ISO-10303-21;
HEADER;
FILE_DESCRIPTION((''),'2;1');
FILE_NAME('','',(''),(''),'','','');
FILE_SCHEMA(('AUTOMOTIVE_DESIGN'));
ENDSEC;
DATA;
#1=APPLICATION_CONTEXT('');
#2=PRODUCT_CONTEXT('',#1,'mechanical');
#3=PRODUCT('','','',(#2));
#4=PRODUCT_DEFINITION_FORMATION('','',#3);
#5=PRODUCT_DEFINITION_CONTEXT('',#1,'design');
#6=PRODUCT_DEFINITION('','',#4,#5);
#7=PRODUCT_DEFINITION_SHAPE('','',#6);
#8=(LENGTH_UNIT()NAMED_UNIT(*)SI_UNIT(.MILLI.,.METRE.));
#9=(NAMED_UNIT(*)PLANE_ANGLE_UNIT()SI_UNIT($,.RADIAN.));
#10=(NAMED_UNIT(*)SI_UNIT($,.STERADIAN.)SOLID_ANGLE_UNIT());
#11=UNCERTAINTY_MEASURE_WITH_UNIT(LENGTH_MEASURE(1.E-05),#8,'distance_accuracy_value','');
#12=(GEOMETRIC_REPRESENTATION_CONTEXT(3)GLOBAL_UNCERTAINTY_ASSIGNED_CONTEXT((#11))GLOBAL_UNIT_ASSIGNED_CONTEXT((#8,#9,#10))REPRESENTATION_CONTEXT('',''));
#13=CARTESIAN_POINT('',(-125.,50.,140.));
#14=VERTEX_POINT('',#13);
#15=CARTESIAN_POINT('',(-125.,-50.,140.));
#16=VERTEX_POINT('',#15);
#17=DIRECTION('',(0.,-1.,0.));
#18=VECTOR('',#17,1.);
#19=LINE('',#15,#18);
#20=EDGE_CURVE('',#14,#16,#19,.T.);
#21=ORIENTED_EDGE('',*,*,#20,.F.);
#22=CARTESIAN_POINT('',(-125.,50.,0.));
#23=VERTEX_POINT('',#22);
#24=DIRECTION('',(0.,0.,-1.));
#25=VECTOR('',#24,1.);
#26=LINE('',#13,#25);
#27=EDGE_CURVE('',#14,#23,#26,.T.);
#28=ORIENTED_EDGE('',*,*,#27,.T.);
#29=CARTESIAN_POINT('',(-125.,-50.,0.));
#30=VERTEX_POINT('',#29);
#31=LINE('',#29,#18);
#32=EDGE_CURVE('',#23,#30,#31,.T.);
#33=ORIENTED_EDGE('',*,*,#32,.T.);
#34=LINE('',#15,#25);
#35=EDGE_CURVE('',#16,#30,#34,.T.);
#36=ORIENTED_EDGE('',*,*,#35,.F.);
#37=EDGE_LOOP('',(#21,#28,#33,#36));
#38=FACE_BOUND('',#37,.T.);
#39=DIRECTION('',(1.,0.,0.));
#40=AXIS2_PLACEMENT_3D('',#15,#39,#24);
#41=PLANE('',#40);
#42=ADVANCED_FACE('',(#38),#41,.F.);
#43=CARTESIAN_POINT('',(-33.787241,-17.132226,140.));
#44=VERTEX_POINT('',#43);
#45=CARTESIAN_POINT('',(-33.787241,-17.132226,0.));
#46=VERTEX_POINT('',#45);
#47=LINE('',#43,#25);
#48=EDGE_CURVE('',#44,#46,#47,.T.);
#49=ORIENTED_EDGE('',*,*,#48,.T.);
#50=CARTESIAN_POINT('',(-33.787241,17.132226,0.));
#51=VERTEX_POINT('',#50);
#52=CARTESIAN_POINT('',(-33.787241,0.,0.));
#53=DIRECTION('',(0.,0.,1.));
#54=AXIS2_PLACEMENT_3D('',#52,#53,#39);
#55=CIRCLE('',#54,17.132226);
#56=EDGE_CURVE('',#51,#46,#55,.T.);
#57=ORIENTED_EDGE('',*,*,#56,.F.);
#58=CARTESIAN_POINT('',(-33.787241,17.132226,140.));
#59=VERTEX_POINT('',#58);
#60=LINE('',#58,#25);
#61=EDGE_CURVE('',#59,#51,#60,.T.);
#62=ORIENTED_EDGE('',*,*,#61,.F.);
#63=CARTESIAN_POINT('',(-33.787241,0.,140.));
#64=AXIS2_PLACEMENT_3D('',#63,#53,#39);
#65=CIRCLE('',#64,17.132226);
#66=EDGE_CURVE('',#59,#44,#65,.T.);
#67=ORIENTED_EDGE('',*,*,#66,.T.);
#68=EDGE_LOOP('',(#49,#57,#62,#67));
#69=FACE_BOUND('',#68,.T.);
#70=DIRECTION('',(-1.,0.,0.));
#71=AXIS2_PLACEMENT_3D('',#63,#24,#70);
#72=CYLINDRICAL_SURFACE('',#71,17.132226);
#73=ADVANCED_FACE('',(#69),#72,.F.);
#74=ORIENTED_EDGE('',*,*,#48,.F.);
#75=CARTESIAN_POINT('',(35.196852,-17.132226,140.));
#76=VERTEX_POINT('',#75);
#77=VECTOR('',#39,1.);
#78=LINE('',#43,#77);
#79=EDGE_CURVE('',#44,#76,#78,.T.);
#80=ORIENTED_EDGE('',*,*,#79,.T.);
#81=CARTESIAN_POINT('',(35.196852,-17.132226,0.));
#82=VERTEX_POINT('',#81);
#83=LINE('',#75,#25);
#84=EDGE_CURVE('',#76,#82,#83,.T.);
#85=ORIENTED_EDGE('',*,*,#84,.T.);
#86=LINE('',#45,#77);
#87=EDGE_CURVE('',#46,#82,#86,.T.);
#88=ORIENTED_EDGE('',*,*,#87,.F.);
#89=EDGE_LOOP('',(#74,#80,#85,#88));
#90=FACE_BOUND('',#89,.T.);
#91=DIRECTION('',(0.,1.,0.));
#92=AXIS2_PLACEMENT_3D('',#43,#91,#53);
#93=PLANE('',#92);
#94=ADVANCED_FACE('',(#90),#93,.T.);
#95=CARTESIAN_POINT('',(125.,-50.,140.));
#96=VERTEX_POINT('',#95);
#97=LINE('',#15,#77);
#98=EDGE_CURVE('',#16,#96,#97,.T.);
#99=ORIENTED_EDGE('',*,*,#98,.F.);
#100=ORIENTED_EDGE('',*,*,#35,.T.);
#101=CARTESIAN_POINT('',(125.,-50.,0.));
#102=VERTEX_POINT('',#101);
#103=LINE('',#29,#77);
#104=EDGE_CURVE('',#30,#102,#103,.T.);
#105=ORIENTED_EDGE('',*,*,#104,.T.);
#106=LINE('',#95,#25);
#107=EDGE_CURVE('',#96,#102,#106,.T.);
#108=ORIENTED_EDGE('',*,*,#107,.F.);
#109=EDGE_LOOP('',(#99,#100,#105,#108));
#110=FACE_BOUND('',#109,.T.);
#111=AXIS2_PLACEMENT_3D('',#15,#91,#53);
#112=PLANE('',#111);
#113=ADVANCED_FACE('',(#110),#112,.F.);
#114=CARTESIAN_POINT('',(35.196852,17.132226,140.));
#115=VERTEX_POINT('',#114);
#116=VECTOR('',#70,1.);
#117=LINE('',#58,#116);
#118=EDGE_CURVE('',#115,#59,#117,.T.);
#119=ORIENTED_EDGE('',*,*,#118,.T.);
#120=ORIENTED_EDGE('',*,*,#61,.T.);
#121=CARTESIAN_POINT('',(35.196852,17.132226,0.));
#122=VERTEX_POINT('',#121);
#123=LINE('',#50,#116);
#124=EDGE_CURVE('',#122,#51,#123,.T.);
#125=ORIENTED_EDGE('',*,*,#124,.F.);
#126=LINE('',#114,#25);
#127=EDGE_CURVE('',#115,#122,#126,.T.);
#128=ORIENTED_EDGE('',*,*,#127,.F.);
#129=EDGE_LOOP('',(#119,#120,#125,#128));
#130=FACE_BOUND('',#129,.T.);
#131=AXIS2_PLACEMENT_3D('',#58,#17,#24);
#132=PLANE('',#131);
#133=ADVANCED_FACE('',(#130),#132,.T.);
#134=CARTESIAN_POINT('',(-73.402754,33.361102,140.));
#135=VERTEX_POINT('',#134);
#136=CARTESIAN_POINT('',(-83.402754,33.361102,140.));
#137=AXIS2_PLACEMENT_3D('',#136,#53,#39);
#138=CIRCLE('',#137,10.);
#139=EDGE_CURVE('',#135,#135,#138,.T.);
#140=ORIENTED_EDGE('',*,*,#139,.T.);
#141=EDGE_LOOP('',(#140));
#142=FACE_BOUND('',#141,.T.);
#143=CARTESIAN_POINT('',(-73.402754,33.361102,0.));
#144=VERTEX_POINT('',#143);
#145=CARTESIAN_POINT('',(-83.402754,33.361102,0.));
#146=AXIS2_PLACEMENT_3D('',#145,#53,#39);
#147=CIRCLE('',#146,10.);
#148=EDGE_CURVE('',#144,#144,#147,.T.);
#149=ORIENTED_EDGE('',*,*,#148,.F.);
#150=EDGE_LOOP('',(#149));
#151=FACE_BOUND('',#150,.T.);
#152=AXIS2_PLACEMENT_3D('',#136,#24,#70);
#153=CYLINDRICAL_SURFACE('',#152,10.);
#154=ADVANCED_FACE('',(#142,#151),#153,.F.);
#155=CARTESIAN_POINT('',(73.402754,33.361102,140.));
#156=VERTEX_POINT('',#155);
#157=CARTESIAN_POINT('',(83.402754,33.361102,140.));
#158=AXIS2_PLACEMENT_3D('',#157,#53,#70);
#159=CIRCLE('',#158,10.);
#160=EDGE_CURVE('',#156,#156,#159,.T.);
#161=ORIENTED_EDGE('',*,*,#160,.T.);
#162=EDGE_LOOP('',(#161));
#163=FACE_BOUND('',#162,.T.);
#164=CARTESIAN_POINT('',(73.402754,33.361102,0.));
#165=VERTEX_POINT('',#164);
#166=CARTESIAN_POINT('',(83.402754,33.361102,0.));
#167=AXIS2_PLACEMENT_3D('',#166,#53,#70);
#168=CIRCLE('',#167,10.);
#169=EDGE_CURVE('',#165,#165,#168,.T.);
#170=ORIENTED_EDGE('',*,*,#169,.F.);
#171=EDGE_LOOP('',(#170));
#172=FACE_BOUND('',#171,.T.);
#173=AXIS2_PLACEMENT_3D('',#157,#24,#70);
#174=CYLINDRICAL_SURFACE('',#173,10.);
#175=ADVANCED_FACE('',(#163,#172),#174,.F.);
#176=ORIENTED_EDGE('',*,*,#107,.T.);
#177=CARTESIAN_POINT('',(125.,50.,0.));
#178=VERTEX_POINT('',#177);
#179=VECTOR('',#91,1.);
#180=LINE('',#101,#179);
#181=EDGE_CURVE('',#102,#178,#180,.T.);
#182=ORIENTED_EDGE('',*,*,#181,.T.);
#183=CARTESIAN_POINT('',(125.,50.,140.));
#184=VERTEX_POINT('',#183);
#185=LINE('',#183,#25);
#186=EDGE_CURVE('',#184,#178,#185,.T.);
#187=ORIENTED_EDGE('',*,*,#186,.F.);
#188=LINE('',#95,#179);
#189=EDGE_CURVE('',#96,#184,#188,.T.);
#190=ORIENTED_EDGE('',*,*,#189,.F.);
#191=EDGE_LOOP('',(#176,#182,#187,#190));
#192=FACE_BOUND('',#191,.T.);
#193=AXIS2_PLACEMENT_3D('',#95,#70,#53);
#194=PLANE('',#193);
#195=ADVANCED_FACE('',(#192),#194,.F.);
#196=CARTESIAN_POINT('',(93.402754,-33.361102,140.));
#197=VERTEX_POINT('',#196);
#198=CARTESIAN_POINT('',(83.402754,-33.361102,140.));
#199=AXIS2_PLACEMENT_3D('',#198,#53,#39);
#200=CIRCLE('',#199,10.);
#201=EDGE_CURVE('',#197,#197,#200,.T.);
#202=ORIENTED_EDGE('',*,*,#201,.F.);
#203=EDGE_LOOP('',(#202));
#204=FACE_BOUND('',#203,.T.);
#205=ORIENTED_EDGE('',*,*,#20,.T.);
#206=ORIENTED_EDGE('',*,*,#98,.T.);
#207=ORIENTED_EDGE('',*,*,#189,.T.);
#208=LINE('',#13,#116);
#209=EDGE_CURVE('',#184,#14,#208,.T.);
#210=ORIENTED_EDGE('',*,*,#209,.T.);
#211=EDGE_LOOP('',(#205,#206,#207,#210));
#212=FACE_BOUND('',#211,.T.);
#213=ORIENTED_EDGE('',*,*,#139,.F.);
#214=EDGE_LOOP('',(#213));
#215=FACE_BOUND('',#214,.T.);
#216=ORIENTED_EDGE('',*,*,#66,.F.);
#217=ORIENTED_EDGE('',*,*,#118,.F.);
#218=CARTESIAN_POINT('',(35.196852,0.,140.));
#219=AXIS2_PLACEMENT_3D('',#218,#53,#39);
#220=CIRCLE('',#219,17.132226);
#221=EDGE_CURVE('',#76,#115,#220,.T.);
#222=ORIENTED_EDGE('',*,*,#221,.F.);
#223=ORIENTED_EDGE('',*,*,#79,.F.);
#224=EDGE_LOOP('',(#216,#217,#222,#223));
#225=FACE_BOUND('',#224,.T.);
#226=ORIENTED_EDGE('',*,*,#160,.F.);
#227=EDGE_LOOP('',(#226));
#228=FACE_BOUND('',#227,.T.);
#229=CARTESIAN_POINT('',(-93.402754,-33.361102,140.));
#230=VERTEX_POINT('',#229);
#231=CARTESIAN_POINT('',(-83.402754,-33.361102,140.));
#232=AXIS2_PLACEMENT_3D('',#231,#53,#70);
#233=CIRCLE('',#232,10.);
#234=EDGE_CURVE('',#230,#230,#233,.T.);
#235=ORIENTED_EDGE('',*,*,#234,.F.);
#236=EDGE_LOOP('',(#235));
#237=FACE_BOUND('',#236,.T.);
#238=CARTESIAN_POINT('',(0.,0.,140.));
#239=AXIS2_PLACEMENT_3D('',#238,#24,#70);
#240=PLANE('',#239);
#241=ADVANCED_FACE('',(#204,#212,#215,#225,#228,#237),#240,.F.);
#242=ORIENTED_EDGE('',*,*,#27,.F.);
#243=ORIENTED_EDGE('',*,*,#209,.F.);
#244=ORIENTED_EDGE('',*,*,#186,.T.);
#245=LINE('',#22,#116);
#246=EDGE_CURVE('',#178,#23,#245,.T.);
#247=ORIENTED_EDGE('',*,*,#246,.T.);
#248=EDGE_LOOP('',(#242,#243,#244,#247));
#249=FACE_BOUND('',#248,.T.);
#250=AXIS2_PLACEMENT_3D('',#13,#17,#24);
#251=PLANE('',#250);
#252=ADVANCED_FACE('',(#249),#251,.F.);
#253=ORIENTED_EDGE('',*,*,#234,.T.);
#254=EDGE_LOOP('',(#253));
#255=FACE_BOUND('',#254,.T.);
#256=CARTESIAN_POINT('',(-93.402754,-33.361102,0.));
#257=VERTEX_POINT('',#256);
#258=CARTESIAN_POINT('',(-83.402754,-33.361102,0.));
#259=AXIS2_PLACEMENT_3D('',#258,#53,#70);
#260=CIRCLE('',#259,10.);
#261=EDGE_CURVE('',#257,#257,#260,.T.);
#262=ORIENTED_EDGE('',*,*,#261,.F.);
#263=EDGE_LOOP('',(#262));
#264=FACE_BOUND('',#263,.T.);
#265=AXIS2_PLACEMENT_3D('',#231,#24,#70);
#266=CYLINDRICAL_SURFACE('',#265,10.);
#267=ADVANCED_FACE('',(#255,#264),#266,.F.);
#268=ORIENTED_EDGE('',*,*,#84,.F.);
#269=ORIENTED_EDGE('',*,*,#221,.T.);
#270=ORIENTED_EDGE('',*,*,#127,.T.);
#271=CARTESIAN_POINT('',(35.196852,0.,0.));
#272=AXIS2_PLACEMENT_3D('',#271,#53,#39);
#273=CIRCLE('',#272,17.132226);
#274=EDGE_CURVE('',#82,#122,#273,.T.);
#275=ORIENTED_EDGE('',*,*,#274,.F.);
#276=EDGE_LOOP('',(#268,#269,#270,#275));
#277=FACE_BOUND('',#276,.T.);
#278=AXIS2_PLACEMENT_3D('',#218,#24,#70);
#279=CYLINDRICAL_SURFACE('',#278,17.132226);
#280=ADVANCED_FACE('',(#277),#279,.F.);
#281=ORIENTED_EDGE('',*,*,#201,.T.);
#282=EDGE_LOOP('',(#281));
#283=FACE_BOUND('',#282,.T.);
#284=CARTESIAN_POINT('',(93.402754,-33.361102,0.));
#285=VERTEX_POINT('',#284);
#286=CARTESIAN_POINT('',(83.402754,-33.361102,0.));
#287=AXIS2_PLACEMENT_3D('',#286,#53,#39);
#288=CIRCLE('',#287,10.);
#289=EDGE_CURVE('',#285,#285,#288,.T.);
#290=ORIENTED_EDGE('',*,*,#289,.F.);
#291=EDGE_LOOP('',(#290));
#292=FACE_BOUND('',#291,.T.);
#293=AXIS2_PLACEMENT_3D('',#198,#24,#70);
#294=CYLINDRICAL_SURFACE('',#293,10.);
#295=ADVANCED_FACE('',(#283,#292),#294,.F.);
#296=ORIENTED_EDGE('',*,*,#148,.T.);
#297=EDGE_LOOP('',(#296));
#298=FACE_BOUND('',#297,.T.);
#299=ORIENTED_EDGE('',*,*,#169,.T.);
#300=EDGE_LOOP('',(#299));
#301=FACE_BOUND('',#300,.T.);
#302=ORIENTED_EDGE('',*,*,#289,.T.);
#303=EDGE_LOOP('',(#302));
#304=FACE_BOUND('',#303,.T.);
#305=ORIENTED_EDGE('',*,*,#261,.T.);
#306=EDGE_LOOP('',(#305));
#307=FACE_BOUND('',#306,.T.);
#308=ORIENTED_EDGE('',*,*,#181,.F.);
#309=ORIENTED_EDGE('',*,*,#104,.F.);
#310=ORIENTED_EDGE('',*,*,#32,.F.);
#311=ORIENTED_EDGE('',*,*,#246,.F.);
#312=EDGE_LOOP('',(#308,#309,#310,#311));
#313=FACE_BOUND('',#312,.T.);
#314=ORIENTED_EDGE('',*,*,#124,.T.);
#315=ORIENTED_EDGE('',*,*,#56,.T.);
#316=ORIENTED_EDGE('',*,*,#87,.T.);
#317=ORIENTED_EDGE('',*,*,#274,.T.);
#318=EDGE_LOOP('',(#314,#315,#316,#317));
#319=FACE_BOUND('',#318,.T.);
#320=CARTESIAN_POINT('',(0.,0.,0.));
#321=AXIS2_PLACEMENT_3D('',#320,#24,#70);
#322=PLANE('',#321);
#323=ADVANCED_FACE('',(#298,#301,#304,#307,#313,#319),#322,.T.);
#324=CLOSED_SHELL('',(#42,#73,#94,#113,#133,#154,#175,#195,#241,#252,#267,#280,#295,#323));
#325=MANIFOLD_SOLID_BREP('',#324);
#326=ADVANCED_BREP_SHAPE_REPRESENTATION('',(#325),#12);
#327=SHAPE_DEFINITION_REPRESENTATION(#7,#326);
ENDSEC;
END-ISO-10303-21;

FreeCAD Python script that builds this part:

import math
import FreeCAD as App
import Part
import Sketcher
from FreeCAD import Vector


def add_polygon(sketch, points):
    """Adds a closed chain of lines whose ends are joined by coincident constraints."""
    first, n = sketch.GeometryCount, len(points)
    for a, b in zip(points, points[1:] + points[:1]):
        sketch.addGeometry(Part.LineSegment(App.Vector(*a, 0), App.Vector(*b, 0)), False)
    for i in range(n):
        sketch.addConstraint(Sketcher.Constraint("Coincident", first + i, 2, first + (i + 1) % n, 1))

doc = App.newDocument("Part")
body = doc.addObject("PartDesign::Body", "Body")

sketch1 = body.newObject("Sketcher::SketchObject", "Sketch")
sketch1.AttachmentSupport = (doc.getObject("XY_Plane"), [""])
sketch1.MapMode = "FlatFace"
add_polygon(sketch1, [(-125, 50), (-125, -50), (125, -50), (125, 50)])
sketch1.addGeometry(Part.Circle(Vector(-83, -33, 0), Vector(0, 0, 1), 10), False)
sketch1.addGeometry(Part.Circle(Vector(83, -33, 0), Vector(0, 0, 1), 10), False)
sketch1.addGeometry(Part.Circle(Vector(-83, 33, 0), Vector(0, 0, 1), 10), False)
sketch1.addGeometry(Part.ArcOfCircle(Part.Circle(Vector(-34, 0, 0), Vector(0, 0, 1), 17), math.radians(90), math.radians(270)), False)
sketch1.addGeometry(Part.LineSegment(Vector(-34, 17, 0), Vector(35, 17, 0)), False)
sketch1.addGeometry(Part.ArcOfCircle(Part.Circle(Vector(35, 0, 0), Vector(0, 0, 1), 17), math.radians(-90), math.radians(90)), False)
sketch1.addGeometry(Part.LineSegment(Vector(35, -17, 0), Vector(-34, -17, 0)), False)
sketch1.addGeometry(Part.Circle(Vector(83, 33, 0), Vector(0, 0, 1), 10), False)
sketch1.addConstraint(Sketcher.Constraint("Tangent", 7, 1, 8, 1))
sketch1.addConstraint(Sketcher.Constraint("Tangent", 8, 2, 9, 2))
sketch1.addConstraint(Sketcher.Constraint("Tangent", 9, 1, 10, 1))
sketch1.addConstraint(Sketcher.Constraint("Tangent", 10, 2, 7, 2))
sketch1.addConstraint(Sketcher.Constraint("Vertical", 0))
sketch1.addConstraint(Sketcher.Constraint("Horizontal", 1))
sketch1.addConstraint(Sketcher.Constraint("Vertical", 2))
sketch1.addConstraint(Sketcher.Constraint("Horizontal", 3))
sketch1.addConstraint(Sketcher.Constraint("Horizontal", 8))
sketch1.addConstraint(Sketcher.Constraint("Horizontal", 10))
sketch1.addConstraint(Sketcher.Constraint("Equal", 4, 5))
sketch1.addConstraint(Sketcher.Constraint("Equal", 5, 6))
sketch1.addConstraint(Sketcher.Constraint("Equal", 6, 11))
sketch1.addConstraint(Sketcher.Constraint("Symmetric", 5, 3, 6, 3, -1, 1))
sketch1.addConstraint(Sketcher.Constraint("Symmetric", 4, 3, 11, 3, -1, 1))
sketch1.addConstraint(Sketcher.Constraint("Symmetric", 0, 2, 2, 2, -1, 1))
sketch1.addConstraint(Sketcher.Constraint("Symmetric", 4, 3, 5, 3, -2))
sketch1.addConstraint(Sketcher.Constraint("PointOnObject", 7, 3, -1))
sketch1.addConstraint(Sketcher.Constraint("Diameter", 4, 20.0))
sketch1.addConstraint(Sketcher.Constraint("DistanceX", 1, 1, 1, 2, 250.0))
sketch1.addConstraint(Sketcher.Constraint("DistanceY", 0, 2, 0, 1, 100.0))
sketch1.addConstraint(Sketcher.Constraint("Radius", 7, 17.132226))
sketch1.addConstraint(Sketcher.Constraint("DistanceY", 4, 3, -1, 1, 33.361102))
sketch1.addConstraint(Sketcher.Constraint("DistanceX", 9, 3, 5, 3, 48.205902))
sketch1.addConstraint(Sketcher.Constraint("DistanceX", 8, 1, 8, 2, 68.984094))
sketch1.addConstraint(Sketcher.Constraint("DistanceX", 7, 3, -1, 1, 33.787241))
pad1 = body.newObject("PartDesign::Pad", "Pad")
pad1.Profile = sketch1
pad1.Length = 140

doc.recompute()
